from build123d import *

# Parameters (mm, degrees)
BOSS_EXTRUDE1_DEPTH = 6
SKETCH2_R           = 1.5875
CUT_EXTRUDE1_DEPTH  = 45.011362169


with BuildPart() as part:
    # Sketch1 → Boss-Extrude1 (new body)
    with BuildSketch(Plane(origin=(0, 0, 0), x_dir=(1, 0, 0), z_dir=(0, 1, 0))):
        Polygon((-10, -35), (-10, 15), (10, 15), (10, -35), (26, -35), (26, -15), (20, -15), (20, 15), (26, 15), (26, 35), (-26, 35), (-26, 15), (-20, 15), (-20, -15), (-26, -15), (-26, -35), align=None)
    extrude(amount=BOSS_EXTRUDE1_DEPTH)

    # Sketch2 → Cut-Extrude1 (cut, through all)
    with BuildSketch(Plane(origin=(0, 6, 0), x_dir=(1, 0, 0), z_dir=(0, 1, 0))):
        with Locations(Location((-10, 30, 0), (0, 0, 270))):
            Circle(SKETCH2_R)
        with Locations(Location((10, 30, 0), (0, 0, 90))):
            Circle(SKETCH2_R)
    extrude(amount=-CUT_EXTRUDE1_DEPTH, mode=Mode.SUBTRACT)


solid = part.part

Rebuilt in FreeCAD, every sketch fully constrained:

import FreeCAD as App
import Part
import Sketcher
from FreeCAD import Vector
Q = App.Units.Quantity


def add_polygon(sketch, points):
    """Adds a closed chain of lines whose ends are joined by coincident constraints."""
    first, n = sketch.GeometryCount, len(points)
    for a, b in zip(points, points[1:] + points[:1]):
        sketch.addGeometry(Part.LineSegment(App.Vector(*a, 0), App.Vector(*b, 0)), False)
    for i in range(n):
        sketch.addConstraint(Sketcher.Constraint("Coincident", first + i, 2, first + (i + 1) % n, 1))

doc = App.newDocument("Part")
params = doc.addObject("Spreadsheet::Sheet", "Params")
for row, (alias, value) in enumerate([
    ("sketch1_width", "20 mm"),
    ("sketch1_width2", "16 mm"),
    ("sketch1_width3", "6 mm"),
    ("sketch1_height", "50 mm"),
    ("pad1_length", "6 mm"),
], start=1):
    params.set(f"A{row}", alias)
    params.set(f"B{row}", "=" + value)
    params.setAlias(f"B{row}", alias)

body = doc.addObject("PartDesign::Body", "Body")

# Sketch on XZ plane
sketch1 = body.newObject("Sketcher::SketchObject", "Sketch")
sketch1.AttachmentSupport = (doc.getObject("XZ_Plane"), [""])
sketch1.MapMode = "FlatFace"
add_polygon(sketch1, [(-10, 35), (-10, -15), (10, -15), (10, 35), (26, 35), (26, 15), (20, 15), (20, -15), (26, -15), (26, -35), (-26, -35), (-26, -15), (-20, -15), (-20, 15), (-26, 15), (-26, 35)])  # lines 0-15
sketch1.addConstraint([
    Sketcher.Constraint("Vertical", 0),
    Sketcher.Constraint("Horizontal", 1),
    Sketcher.Constraint("Vertical", 2),
    Sketcher.Constraint("Horizontal", 3),
    Sketcher.Constraint("Vertical", 4),
    Sketcher.Constraint("Horizontal", 5),
    Sketcher.Constraint("Vertical", 6),
    Sketcher.Constraint("Horizontal", 7),
    Sketcher.Constraint("Vertical", 8),
    Sketcher.Constraint("Horizontal", 9),
    Sketcher.Constraint("Vertical", 10),
    Sketcher.Constraint("Horizontal", 11),
    Sketcher.Constraint("Vertical", 12),
    Sketcher.Constraint("Horizontal", 13),
    Sketcher.Constraint("Vertical", 14),
    Sketcher.Constraint("Horizontal", 15),
    Sketcher.Constraint("Symmetric", 3, 2, 9, 2, -1, 1),
    Sketcher.Constraint("Symmetric", 5, 2, 11, 2, -1, 1),
    Sketcher.Constraint("Symmetric", 7, 2, 13, 2, -1, 1),
    Sketcher.Constraint("Symmetric", 7, 2, 10, 2, -2),
    Sketcher.Constraint("Symmetric", 2, 2, 15, 2, -2),
    Sketcher.Constraint("Horizontal", 1, 2, 6, 2),
    Sketcher.Constraint("Equal", 1, 4),
    Sketcher.Constraint("DistanceX", 1, 1, 1, 2, Q("20 mm")),
    Sketcher.Constraint("DistanceX", 3, 1, 3, 2, Q("16 mm")),
    Sketcher.Constraint("DistanceX", 5, 2, 5, 1, Q("6 mm")),
    Sketcher.Constraint("DistanceY", 0, 2, 0, 1, Q("50 mm")),
])
sketch1.setExpression("Constraints[39]", "Params.sketch1_width")
sketch1.setExpression("Constraints[40]", "Params.sketch1_width2")
sketch1.setExpression("Constraints[41]", "Params.sketch1_width3")
sketch1.setExpression("Constraints[42]", "Params.sketch1_height")
pad1 = body.newObject("PartDesign::Pad", "Pad")
pad1.Profile = sketch1
pad1.setExpression("Length", "Params.pad1_length")
pad1.Reversed = True

# Sketch on XZ plane
sketch2 = body.newObject("Sketcher::SketchObject", "Sketch001")
sketch2.AttachmentSupport = (doc.getObject("XZ_Plane"), [""])
sketch2.MapMode = "FlatFace"
sketch2.AttachmentOffset = App.Placement(Vector(0, 0, -6), App.Rotation())
sketch2.addGeometry([
    Part.Circle(Vector(-10, -30, 0), Vector(0, 0, 1), 1.6),
    Part.Circle(Vector(10, -30, 0), Vector(0, 0, 1), 1.6),
], False)
sketch2.addConstraint([
    Sketcher.Constraint("Equal", 0, 1),
    Sketcher.Constraint("Symmetric", 0, 3, 1, 3, -2),
    Sketcher.Constraint("Diameter", 0, Q("3.175 mm")),
    Sketcher.Constraint("DistanceX", 0, 3, -1, 1, Q("10 mm")),
    Sketcher.Constraint("DistanceY", 0, 3, -1, 1, Q("30 mm")),
])
pocket1 = body.newObject("PartDesign::Pocket", "Pocket")
pocket1.Profile = sketch2
pocket1.Type = "ThroughAll"
pocket1.Reversed = True

doc.recompute()
